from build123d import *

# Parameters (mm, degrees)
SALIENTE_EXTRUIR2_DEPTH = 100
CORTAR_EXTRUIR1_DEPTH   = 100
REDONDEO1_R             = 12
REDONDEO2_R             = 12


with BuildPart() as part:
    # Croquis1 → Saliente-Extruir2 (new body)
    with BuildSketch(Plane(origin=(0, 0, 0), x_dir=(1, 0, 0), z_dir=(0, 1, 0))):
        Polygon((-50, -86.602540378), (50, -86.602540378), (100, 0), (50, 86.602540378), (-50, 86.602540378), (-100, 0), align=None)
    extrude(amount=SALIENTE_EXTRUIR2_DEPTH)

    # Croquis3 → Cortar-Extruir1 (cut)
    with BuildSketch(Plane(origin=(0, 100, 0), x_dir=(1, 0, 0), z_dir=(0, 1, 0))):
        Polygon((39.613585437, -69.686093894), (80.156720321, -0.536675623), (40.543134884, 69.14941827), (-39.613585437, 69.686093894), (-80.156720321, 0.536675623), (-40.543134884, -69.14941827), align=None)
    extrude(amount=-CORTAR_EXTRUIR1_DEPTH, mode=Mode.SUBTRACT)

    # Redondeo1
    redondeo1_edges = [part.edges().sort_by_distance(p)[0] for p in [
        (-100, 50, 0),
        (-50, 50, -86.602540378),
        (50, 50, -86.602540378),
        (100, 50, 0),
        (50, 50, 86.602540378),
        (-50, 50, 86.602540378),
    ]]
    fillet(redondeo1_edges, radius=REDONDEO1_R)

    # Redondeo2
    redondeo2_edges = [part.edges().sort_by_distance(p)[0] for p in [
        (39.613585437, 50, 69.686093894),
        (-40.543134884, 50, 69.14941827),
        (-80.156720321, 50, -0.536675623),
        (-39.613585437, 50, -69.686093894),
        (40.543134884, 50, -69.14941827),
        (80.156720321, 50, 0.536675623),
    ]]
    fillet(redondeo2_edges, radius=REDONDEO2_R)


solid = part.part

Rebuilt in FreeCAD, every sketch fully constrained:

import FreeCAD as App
import Part
import Sketcher

V = App.Vector
Q = App.Units.Quantity


def edges_at(feature, points):
    """Names of the edges that pass closest to the given points."""
    edges = feature.Shape.Edges
    near = lambda p: min(range(len(edges)), key=lambda i: edges[i].distToShape(Part.Vertex(*p))[0])
    return sorted({f"Edge{near(p) + 1}" for p in points})

doc = App.newDocument("Part")
body = doc.addObject("PartDesign::Body", "Body")

sketch1 = body.newObject("Sketcher::SketchObject", "Sketch")
sketch1.AttachmentSupport = (doc.getObject("XZ_Plane"), [""])
sketch1.MapMode = "FlatFace"
sketch1.addGeometry([
    Part.LineSegment(V(-50, 87, 0), V(50, 87, 0)),
    Part.LineSegment(V(50, 87, 0), V(100, 0, 0)),
    Part.LineSegment(V(100, 0, 0), V(50, -87, 0)),
    Part.LineSegment(V(50, -87, 0), V(-50, -87, 0)),
    Part.LineSegment(V(-50, -87, 0), V(-100, 0, 0)),
    Part.LineSegment(V(-100, 0, 0), V(-50, 87, 0)),
], False)
sketch1.addConstraint([
    Sketcher.Constraint("Coincident", 0, 2, 1, 1),
    Sketcher.Constraint("Coincident", 1, 2, 2, 1),
    Sketcher.Constraint("Coincident", 2, 2, 3, 1),
    Sketcher.Constraint("Coincident", 3, 2, 4, 1),
    Sketcher.Constraint("Coincident", 4, 2, 5, 1),
    Sketcher.Constraint("Coincident", 5, 2, 0, 1),
    Sketcher.Constraint("Horizontal", 0),
    Sketcher.Constraint("Horizontal", 3),
    Sketcher.Constraint("Symmetric", 0, 2, 3, 2, -1, 1),
    Sketcher.Constraint("Symmetric", 1, 2, 4, 2, -1, 1),
    Sketcher.Constraint("PointOnObject", 1, 2, -1),
    Sketcher.Constraint("Parallel", 2, 5),
    Sketcher.Constraint("Vertical", 0, 2, 2, 2),
    Sketcher.Constraint("DistanceX", 0, 1, 0, 2, Q("100 mm")),
    Sketcher.Constraint("Angle", 1, Q("-60 deg")),
    Sketcher.Constraint("Distance", 1, Q("100 mm")),
])
pad1 = body.newObject("PartDesign::Pad", "Pad")
pad1.Profile = sketch1
pad1.Length = 100
pad1.Reversed = True

sketch2 = body.newObject("Sketcher::SketchObject", "Sketch001")
sketch2.AttachmentSupport = (doc.getObject("XZ_Plane"), [""])
sketch2.MapMode = "FlatFace"
sketch2.AttachmentOffset = App.Placement(V(0, 0, -100), App.Rotation())
sketch2.addGeometry([
    Part.LineSegment(V(40, 70, 0), V(80, 1, 0)),
    Part.LineSegment(V(80, 1, 0), V(41, -69, 0)),
    Part.LineSegment(V(41, -69, 0), V(-40, -70, 0)),
    Part.LineSegment(V(-40, -70, 0), V(-80, -1, 0)),
    Part.LineSegment(V(-80, -1, 0), V(-41, 69, 0)),
    Part.LineSegment(V(-41, 69, 0), V(40, 70, 0)),
], False)
sketch2.addConstraint([
    Sketcher.Constraint("Coincident", 0, 2, 1, 1),
    Sketcher.Constraint("Coincident", 1, 2, 2, 1),
    Sketcher.Constraint("Coincident", 2, 2, 3, 1),
    Sketcher.Constraint("Coincident", 3, 2, 4, 1),
    Sketcher.Constraint("Coincident", 4, 2, 5, 1),
    Sketcher.Constraint("Coincident", 5, 2, 0, 1),
    Sketcher.Constraint("Symmetric", 0, 2, 3, 2, -1, 1),
    Sketcher.Constraint("Symmetric", 1, 2, 4, 2, -1, 1),
    Sketcher.Constraint("Symmetric", 2, 2, 5, 2, -1, 1),
    Sketcher.Constraint("Equal", 0, 1),
    Sketcher.Constraint("Equal", 1, 2),
    Sketcher.Constraint("DistanceX", -1, 1, 0, 2, Q("80.15672 mm")),
    Sketcher.Constraint("DistanceY", 1, 2, -1, 1, Q("69.149418 mm")),
    Sketcher.Constraint("DistanceX", 2, 2, 1, 2, Q("80.15672 mm")),
    Sketcher.Constraint("DistanceY", 2, 2, 0, 2, Q("70.22277 mm")),
])
pocket1 = body.newObject("PartDesign::Pocket", "Pocket")
pocket1.Profile = sketch2
pocket1.Length = 100
pocket1.Reversed = True
doc.recompute()

fillet = body.newObject("PartDesign::Fillet", "Fillet")
fillet.Base = (pocket1, edges_at(pocket1, [
    (-100, 50, 0),
    (-50, 50, -86.603),
    (50, 50, -86.603),
    (100, 50, 0),
    (50, 50, 86.603),
    (-50, 50, 86.603),
]))
fillet.Radius = 12
doc.recompute()

fillet2 = body.newObject("PartDesign::Fillet", "Fillet001")
fillet2.Base = (fillet, edges_at(fillet, [
    (39.614, 50, 69.686),
    (-40.543, 50, 69.149),
    (-80.157, 50, -0.537),
    (-39.614, 50, -69.686),
    (40.543, 50, -69.149),
    (80.157, 50, 0.537),
]))
fillet2.Radius = 12

doc.recompute()
